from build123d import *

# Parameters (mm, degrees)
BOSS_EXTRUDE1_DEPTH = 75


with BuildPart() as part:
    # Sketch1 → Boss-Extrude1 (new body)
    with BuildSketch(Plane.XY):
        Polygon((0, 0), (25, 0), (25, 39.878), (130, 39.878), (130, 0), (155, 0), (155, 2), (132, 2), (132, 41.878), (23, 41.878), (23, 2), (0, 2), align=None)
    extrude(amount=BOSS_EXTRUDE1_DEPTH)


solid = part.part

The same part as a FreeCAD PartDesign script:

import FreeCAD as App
import Part
import Sketcher
Q = App.Units.Quantity

doc = App.newDocument("Part")
body = doc.addObject("PartDesign::Body", "Body")

# Sketch on XY plane
sketch1 = doc.addObject("Sketcher::SketchObject", "Sketch")
body.addObject(sketch1)
sketch1.AttachmentSupport = (doc.XY_Plane, [""])
sketch1.MapMode = "FlatFace"
sketch1.addGeometry(Part.LineSegment(App.Vector(0, 0, 0), App.Vector(25, 0, 0)), False)
sketch1.addGeometry(Part.LineSegment(App.Vector(25, 0, 0), App.Vector(25, 39.9, 0)), False)
sketch1.addGeometry(Part.LineSegment(App.Vector(25, 39.9, 0), App.Vector(130, 39.9, 0)), False)
sketch1.addGeometry(Part.LineSegment(App.Vector(130, 39.9, 0), App.Vector(130, 0, 0)), False)
sketch1.addGeometry(Part.LineSegment(App.Vector(130, 0, 0), App.Vector(155, 0, 0)), False)
sketch1.addGeometry(Part.LineSegment(App.Vector(155, 0, 0), App.Vector(155, 2, 0)), False)
sketch1.addGeometry(Part.LineSegment(App.Vector(155, 2, 0), App.Vector(132, 2, 0)), False)
sketch1.addGeometry(Part.LineSegment(App.Vector(132, 2, 0), App.Vector(132, 41.9, 0)), False)
sketch1.addGeometry(Part.LineSegment(App.Vector(132, 41.9, 0), App.Vector(23, 41.9, 0)), False)
sketch1.addGeometry(Part.LineSegment(App.Vector(23, 41.9, 0), App.Vector(23, 2, 0)), False)
sketch1.addGeometry(Part.LineSegment(App.Vector(23, 2, 0), App.Vector(0, 2, 0)), False)
sketch1.addGeometry(Part.LineSegment(App.Vector(0, 2, 0), App.Vector(0, 0, 0)), False)
sketch1.addConstraint(Sketcher.Constraint("Coincident", 0, 2, 1, 1))
sketch1.addConstraint(Sketcher.Constraint("Coincident", 1, 2, 2, 1))
sketch1.addConstraint(Sketcher.Constraint("Coincident", 2, 2, 3, 1))
sketch1.addConstraint(Sketcher.Constraint("Coincident", 3, 2, 4, 1))
sketch1.addConstraint(Sketcher.Constraint("Coincident", 4, 2, 5, 1))
sketch1.addConstraint(Sketcher.Constraint("Coincident", 5, 2, 6, 1))
sketch1.addConstraint(Sketcher.Constraint("Coincident", 6, 2, 7, 1))
sketch1.addConstraint(Sketcher.Constraint("Coincident", 7, 2, 8, 1))
sketch1.addConstraint(Sketcher.Constraint("Coincident", 8, 2, 9, 1))
sketch1.addConstraint(Sketcher.Constraint("Coincident", 9, 2, 10, 1))
sketch1.addConstraint(Sketcher.Constraint("Coincident", 10, 2, 11, 1))
sketch1.addConstraint(Sketcher.Constraint("Coincident", 11, 2, 0, 1))
sketch1.addConstraint(Sketcher.Constraint("Horizontal", 0))
sketch1.addConstraint(Sketcher.Constraint("Vertical", 1))
sketch1.addConstraint(Sketcher.Constraint("Horizontal", 2))
sketch1.addConstraint(Sketcher.Constraint("Vertical", 3))
sketch1.addConstraint(Sketcher.Constraint("Horizontal", 4))
sketch1.addConstraint(Sketcher.Constraint("Vertical", 5))
sketch1.addConstraint(Sketcher.Constraint("Horizontal", 6))
sketch1.addConstraint(Sketcher.Constraint("Vertical", 7))
sketch1.addConstraint(Sketcher.Constraint("Horizontal", 8))
sketch1.addConstraint(Sketcher.Constraint("Vertical", 9))
sketch1.addConstraint(Sketcher.Constraint("Horizontal", 10))
sketch1.addConstraint(Sketcher.Constraint("Vertical", 11))
sketch1.addConstraint(Sketcher.Constraint("Coincident", 11, 2, -1, 1))
sketch1.addConstraint(Sketcher.Constraint("PointOnObject", 3, 2, -1))
sketch1.addConstraint(Sketcher.Constraint("Horizontal", 6, 2, 9, 2))
sketch1.addConstraint(Sketcher.Constraint("Equal", 0, 4))
sketch1.addConstraint(Sketcher.Constraint("Equal", 6, 10))
sketch1.addConstraint(Sketcher.Constraint("Equal", 3, 7))
sketch1.addConstraint(Sketcher.Constraint("DistanceX", 0, 1, 0, 2, Q("25 mm")))
sketch1.addConstraint(Sketcher.Constraint("DistanceX", 2, 1, 2, 2, Q("105 mm")))
sketch1.addConstraint(Sketcher.Constraint("DistanceX", 6, 2, 6, 1, Q("23 mm")))
sketch1.addConstraint(Sketcher.Constraint("DistanceY", 5, 1, 5, 2, Q("2 mm")))
sketch1.addConstraint(Sketcher.Constraint("DistanceY", 1, 1, 1, 2, Q("39.878 mm")))
pad1 = doc.addObject("PartDesign::Pad", "Pad")
body.addObject(pad1)
pad1.Profile = sketch1
pad1.Length = 75

doc.recompute()
